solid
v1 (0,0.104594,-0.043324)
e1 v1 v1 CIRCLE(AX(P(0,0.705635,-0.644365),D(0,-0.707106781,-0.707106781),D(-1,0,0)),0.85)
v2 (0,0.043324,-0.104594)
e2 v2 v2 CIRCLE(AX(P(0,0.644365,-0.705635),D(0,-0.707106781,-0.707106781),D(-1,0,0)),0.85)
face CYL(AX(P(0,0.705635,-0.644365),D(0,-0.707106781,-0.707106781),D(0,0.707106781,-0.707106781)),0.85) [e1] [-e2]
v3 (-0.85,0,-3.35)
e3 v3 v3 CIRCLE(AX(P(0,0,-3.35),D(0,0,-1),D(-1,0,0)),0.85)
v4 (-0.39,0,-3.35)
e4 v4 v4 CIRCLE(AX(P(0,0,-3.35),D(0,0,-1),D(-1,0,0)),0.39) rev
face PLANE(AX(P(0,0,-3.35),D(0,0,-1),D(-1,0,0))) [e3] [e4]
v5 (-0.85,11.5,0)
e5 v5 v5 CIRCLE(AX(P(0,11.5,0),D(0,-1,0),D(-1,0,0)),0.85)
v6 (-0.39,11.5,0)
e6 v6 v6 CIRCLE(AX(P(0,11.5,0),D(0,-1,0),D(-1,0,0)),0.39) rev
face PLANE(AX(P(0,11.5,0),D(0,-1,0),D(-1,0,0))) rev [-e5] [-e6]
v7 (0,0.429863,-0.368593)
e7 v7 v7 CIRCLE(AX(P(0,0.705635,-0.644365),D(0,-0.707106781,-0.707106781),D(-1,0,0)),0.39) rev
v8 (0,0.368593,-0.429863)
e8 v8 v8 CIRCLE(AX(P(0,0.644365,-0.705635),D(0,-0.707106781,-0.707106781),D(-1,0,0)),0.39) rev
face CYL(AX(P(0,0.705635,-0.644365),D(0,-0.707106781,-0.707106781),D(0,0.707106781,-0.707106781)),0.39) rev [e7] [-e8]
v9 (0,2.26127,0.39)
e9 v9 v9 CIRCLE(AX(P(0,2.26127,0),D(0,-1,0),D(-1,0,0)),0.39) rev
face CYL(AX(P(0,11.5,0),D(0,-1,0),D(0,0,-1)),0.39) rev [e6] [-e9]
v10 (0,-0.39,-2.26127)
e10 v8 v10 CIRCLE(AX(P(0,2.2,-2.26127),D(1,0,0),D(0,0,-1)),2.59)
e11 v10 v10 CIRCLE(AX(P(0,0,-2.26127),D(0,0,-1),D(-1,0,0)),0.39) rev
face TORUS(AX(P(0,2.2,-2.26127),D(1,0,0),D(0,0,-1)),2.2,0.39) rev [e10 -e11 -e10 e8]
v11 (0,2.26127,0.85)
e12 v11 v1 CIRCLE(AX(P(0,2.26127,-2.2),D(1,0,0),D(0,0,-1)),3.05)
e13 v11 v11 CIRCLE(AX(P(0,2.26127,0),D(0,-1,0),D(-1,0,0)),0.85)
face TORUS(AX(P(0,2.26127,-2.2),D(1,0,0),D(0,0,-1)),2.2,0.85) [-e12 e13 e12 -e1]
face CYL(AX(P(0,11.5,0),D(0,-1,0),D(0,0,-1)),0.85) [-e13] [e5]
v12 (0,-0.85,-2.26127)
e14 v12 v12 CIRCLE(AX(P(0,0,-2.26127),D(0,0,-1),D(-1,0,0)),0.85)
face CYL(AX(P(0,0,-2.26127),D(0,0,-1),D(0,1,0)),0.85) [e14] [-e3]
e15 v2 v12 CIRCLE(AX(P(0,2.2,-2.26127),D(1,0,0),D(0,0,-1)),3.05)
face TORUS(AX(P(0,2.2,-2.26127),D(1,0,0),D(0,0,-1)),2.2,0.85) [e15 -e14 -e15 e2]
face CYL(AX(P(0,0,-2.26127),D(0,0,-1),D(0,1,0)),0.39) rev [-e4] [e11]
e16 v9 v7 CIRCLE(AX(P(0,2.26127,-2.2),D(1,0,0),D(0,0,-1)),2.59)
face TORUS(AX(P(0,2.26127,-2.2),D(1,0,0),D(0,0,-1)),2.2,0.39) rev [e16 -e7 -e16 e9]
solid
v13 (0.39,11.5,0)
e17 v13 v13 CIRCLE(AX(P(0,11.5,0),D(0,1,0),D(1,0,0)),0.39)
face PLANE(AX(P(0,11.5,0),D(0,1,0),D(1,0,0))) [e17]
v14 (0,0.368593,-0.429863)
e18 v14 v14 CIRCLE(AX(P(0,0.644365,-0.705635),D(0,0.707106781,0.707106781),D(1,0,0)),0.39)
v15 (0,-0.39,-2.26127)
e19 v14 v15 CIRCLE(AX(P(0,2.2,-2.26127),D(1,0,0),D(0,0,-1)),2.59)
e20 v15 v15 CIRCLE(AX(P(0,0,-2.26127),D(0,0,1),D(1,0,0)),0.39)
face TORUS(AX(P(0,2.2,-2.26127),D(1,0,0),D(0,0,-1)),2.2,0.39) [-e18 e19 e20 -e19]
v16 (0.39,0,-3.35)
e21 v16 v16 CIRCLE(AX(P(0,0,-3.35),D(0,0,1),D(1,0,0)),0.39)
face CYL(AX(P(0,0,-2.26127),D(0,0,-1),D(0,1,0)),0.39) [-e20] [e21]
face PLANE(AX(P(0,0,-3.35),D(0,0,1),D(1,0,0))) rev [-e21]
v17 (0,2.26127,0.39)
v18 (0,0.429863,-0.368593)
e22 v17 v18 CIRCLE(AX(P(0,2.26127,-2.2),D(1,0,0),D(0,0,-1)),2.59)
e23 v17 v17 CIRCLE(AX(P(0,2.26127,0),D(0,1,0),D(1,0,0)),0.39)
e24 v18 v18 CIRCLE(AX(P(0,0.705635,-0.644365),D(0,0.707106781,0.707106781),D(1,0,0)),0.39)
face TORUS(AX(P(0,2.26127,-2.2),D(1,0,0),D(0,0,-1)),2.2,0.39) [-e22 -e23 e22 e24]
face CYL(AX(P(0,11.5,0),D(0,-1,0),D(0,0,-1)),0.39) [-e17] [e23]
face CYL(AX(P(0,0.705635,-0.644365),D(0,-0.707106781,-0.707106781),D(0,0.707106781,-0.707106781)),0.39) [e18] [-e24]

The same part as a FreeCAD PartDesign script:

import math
import FreeCAD as App
import Part
import Sketcher
from FreeCAD import Vector
Q = App.Units.Quantity

doc = App.newDocument("Part")
params = doc.addObject("Spreadsheet::Sheet", "Params")
for row, (alias, value) in enumerate([
    ("sketch1_diameter", "0.78 mm"),
    ("sketch2_radius", "2.2 mm"),
    ("sketch3_diameter", "1.7 mm"),
    ("sketch3_diameter2", "0.78 mm"),
    ("sketch4_radius", "2.2 mm"),
], start=1):
    params.set(f"A{row}", alias)
    params.set(f"B{row}", "=" + value)
    params.setAlias(f"B{row}", alias)

body = doc.addObject("PartDesign::Body", "Body")

sketch1 = body.newObject("Sketcher::SketchObject", "Sketch")
sketch1.AttachmentSupport = (doc.getObject("XY_Plane"), [""])
sketch1.MapMode = "FlatFace"
sketch1.AttachmentOffset = App.Placement(Vector(0, 0, -3.35), App.Rotation())
sketch1.addGeometry(Part.Circle(Vector(0, 0, 0), Vector(0, 0, 1), 0.39), False)
sketch1.addConstraint([
    Sketcher.Constraint("Coincident", 0, 3, -1, 1),
    Sketcher.Constraint("Diameter", 0, 0.78),
])
sketch1.setExpression("Constraints[1]", "Params.sketch1_diameter")

sketch2 = body.newObject("Sketcher::SketchObject", "Sketch001")
sketch2.AttachmentSupport = (doc.getObject("YZ_Plane"), [""])
sketch2.MapMode = "FlatFace"
sketch2.addGeometry([
    Part.LineSegment(Vector(11.5, 0, 0), Vector(2.26, 0, 0)),
    Part.ArcOfCircle(Part.Circle(Vector(2.26, -2.2, 0), Vector(0, 0, 1), 2.2), math.radians(90), math.radians(135)),
    Part.LineSegment(Vector(0.71, -0.64, 0), Vector(0.64, -0.71, 0)),
    Part.ArcOfCircle(Part.Circle(Vector(2.2, -2.26, 0), Vector(0, 0, 1), 2.2), math.radians(135), math.radians(180)),
    Part.LineSegment(Vector(0, -2.26, 0), Vector(0, -3.35, 0)),
], False)
sketch2.addConstraint([
    Sketcher.Constraint("Tangent", 0, 2, 1, 1),
    Sketcher.Constraint("Tangent", 1, 2, 2, 1),
    Sketcher.Constraint("Tangent", 2, 2, 3, 1),
    Sketcher.Constraint("Tangent", 3, 2, 4, 1),
    Sketcher.Constraint("Horizontal", 0),
    Sketcher.Constraint("Vertical", 4),
    Sketcher.Constraint("Equal", 1, 3),
    Sketcher.Constraint("PointOnObject", 0, 1, -1),
    Sketcher.Constraint("PointOnObject", 3, 2, -2),
    Sketcher.Constraint("Radius", 1, 2.2),
    Sketcher.Constraint("Angle", 2, Q("-135 deg")),
    Sketcher.Constraint("DistanceX", -1, 1, 0, 1, 11.5),
    Sketcher.Constraint("DistanceY", 4, 2, -1, 1, 3.35),
    Sketcher.Constraint("DistanceX", 0, 2, 0, 1, 9.23873),
])
sketch2.setExpression("Constraints[9]", "Params.sketch2_radius")
doc.recompute()

additivepipe = body.newObject("PartDesign::AdditivePipe", "AdditivePipe")
additivepipe.Profile = sketch1
additivepipe.Spine = (sketch2, ["Edge1", "Edge2", "Edge3", "Edge4", "Edge5"])
body2 = doc.addObject("PartDesign::Body", "Body001")

sketch3 = body2.newObject("Sketcher::SketchObject", "Sketch002")
sketch3.AttachmentSupport = (doc.getObject("XY_Plane001"), [""])
sketch3.MapMode = "FlatFace"
sketch3.AttachmentOffset = App.Placement(Vector(0, 0, -3.35), App.Rotation())
sketch3.addGeometry([
    Part.Circle(Vector(0, 0, 0), Vector(0, 0, 1), 0.85),
    Part.Circle(Vector(0, 0, 0), Vector(0, 0, 1), 0.39),
], False)
sketch3.addConstraint([
    Sketcher.Constraint("Coincident", 0, 3, -1, 1),
    Sketcher.Constraint("Coincident", 1, 3, -1, 1),
    Sketcher.Constraint("Diameter", 0, 1.7),
    Sketcher.Constraint("Diameter", 1, 0.78),
])
sketch3.setExpression("Constraints[2]", "Params.sketch3_diameter")
sketch3.setExpression("Constraints[3]", "Params.sketch3_diameter2")

sketch4 = body2.newObject("Sketcher::SketchObject", "Sketch003")
sketch4.AttachmentSupport = (doc.getObject("YZ_Plane001"), [""])
sketch4.MapMode = "FlatFace"
sketch4.addGeometry([
    Part.LineSegment(Vector(11.5, 0, 0), Vector(2.26, 0, 0)),
    Part.ArcOfCircle(Part.Circle(Vector(2.26, -2.2, 0), Vector(0, 0, 1), 2.2), math.radians(90), math.radians(135)),
    Part.LineSegment(Vector(0.71, -0.64, 0), Vector(0.64, -0.71, 0)),
    Part.ArcOfCircle(Part.Circle(Vector(2.2, -2.26, 0), Vector(0, 0, 1), 2.2), math.radians(135), math.radians(180)),
    Part.LineSegment(Vector(0, -2.26, 0), Vector(0, -3.35, 0)),
], False)
sketch4.addConstraint([
    Sketcher.Constraint("Tangent", 0, 2, 1, 1),
    Sketcher.Constraint("Tangent", 1, 2, 2, 1),
    Sketcher.Constraint("Tangent", 2, 2, 3, 1),
    Sketcher.Constraint("Tangent", 3, 2, 4, 1),
    Sketcher.Constraint("Horizontal", 0),
    Sketcher.Constraint("Vertical", 4),
    Sketcher.Constraint("Equal", 1, 3),
    Sketcher.Constraint("PointOnObject", 0, 1, -1),
    Sketcher.Constraint("PointOnObject", 3, 2, -2),
    Sketcher.Constraint("Radius", 1, 2.2),
    Sketcher.Constraint("Angle", 2, Q("-135 deg")),
    Sketcher.Constraint("DistanceX", -1, 1, 0, 1, 11.5),
    Sketcher.Constraint("DistanceY", 4, 2, -1, 1, 3.35),
    Sketcher.Constraint("DistanceX", 0, 2, 0, 1, 9.23873),
])
sketch4.setExpression("Constraints[9]", "Params.sketch4_radius")
doc.recompute()

additivepipe2 = body2.newObject("PartDesign::AdditivePipe", "AdditivePipe001")
additivepipe2.Profile = sketch3
additivepipe2.Spine = (sketch4, ["Edge1", "Edge2", "Edge3", "Edge4", "Edge5"])

doc.recompute()
